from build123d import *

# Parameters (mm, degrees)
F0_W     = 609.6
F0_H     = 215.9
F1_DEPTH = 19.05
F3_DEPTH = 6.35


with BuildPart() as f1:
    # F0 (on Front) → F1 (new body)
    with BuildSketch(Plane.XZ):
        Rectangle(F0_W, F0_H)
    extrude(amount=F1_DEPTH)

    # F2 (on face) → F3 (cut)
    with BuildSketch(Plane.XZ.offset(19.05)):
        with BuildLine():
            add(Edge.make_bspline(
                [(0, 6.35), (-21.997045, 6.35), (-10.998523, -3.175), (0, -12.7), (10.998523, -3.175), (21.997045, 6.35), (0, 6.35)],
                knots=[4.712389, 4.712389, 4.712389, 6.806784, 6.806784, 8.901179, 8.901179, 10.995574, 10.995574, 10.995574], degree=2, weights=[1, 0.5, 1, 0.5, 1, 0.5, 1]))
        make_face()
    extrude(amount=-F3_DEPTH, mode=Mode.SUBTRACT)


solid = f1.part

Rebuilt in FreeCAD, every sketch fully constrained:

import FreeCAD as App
import Part
import Sketcher

V = App.Vector
Q = App.Units.Quantity

doc = App.newDocument("Part")
body = doc.addObject("PartDesign::Body", "Body")

# Sketch on XZ plane
sketch1 = body.newObject("Sketcher::SketchObject", "Sketch")
sketch1.AttachmentSupport = (doc.getObject("XZ_Plane"), [""])
sketch1.MapMode = "FlatFace"
sketch1.addGeometry([
    Part.LineSegment(V(-304.8, 107.95, 0), V(-304.8, -107.95, 0)),
    Part.LineSegment(V(-304.8, -107.95, 0), V(304.8, -107.95, 0)),
    Part.LineSegment(V(304.8, -107.95, 0), V(304.8, 107.95, 0)),
    Part.LineSegment(V(304.8, 107.95, 0), V(-304.8, 107.95, 0)),
], False)
sketch1.addConstraint([
    Sketcher.Constraint("Coincident", 0, 2, 1, 1),
    Sketcher.Constraint("Coincident", 1, 2, 2, 1),
    Sketcher.Constraint("Coincident", 2, 2, 3, 1),
    Sketcher.Constraint("Coincident", 3, 2, 0, 1),
    Sketcher.Constraint("Vertical", 0),
    Sketcher.Constraint("Horizontal", 1),
    Sketcher.Constraint("Vertical", 2),
    Sketcher.Constraint("Horizontal", 3),
    Sketcher.Constraint("Symmetric", 0, 2, 2, 2, -1, 1),
    Sketcher.Constraint("DistanceX", 1, 1, 1, 2, Q("24 in")),
    Sketcher.Constraint("DistanceY", 0, 2, 0, 1, Q("8.5 in")),
])
pad1 = body.newObject("PartDesign::Pad", "Pad")
pad1.Profile = sketch1
pad1.Length = Q("0.75 in")

# Sketch on XZ plane
sketch2 = body.newObject("Sketcher::SketchObject", "Sketch001")
sketch2.AttachmentSupport = (doc.getObject("XZ_Plane"), [""])
sketch2.MapMode = "FlatFace"
sketch2.AttachmentOffset = App.Placement(V(0, 0, 0.75 * 25.4), App.Rotation())
sketch2.addGeometry(Part.BSplineCurve([V(0, 6.35, 0), V(-21.997045, 6.35, 0), V(-10.998523, -3.175, 0), V(0, -12.7, 0), V(10.998523, -3.175, 0), V(21.997045, 6.35, 0), V(0, 6.35, 0)], [3, 2, 2, 3], [4.712389, 6.806784, 8.901179, 10.995574], False, 2, [1, 0.5, 1, 0.5, 1, 0.5, 1], False), False)
sketch2.addConstraint(Sketcher.Constraint("Block", 0))
pocket1 = body.newObject("PartDesign::Pocket", "Pocket")
pocket1.Profile = sketch2
pocket1.Length = Q("0.25 in")

doc.recompute()
